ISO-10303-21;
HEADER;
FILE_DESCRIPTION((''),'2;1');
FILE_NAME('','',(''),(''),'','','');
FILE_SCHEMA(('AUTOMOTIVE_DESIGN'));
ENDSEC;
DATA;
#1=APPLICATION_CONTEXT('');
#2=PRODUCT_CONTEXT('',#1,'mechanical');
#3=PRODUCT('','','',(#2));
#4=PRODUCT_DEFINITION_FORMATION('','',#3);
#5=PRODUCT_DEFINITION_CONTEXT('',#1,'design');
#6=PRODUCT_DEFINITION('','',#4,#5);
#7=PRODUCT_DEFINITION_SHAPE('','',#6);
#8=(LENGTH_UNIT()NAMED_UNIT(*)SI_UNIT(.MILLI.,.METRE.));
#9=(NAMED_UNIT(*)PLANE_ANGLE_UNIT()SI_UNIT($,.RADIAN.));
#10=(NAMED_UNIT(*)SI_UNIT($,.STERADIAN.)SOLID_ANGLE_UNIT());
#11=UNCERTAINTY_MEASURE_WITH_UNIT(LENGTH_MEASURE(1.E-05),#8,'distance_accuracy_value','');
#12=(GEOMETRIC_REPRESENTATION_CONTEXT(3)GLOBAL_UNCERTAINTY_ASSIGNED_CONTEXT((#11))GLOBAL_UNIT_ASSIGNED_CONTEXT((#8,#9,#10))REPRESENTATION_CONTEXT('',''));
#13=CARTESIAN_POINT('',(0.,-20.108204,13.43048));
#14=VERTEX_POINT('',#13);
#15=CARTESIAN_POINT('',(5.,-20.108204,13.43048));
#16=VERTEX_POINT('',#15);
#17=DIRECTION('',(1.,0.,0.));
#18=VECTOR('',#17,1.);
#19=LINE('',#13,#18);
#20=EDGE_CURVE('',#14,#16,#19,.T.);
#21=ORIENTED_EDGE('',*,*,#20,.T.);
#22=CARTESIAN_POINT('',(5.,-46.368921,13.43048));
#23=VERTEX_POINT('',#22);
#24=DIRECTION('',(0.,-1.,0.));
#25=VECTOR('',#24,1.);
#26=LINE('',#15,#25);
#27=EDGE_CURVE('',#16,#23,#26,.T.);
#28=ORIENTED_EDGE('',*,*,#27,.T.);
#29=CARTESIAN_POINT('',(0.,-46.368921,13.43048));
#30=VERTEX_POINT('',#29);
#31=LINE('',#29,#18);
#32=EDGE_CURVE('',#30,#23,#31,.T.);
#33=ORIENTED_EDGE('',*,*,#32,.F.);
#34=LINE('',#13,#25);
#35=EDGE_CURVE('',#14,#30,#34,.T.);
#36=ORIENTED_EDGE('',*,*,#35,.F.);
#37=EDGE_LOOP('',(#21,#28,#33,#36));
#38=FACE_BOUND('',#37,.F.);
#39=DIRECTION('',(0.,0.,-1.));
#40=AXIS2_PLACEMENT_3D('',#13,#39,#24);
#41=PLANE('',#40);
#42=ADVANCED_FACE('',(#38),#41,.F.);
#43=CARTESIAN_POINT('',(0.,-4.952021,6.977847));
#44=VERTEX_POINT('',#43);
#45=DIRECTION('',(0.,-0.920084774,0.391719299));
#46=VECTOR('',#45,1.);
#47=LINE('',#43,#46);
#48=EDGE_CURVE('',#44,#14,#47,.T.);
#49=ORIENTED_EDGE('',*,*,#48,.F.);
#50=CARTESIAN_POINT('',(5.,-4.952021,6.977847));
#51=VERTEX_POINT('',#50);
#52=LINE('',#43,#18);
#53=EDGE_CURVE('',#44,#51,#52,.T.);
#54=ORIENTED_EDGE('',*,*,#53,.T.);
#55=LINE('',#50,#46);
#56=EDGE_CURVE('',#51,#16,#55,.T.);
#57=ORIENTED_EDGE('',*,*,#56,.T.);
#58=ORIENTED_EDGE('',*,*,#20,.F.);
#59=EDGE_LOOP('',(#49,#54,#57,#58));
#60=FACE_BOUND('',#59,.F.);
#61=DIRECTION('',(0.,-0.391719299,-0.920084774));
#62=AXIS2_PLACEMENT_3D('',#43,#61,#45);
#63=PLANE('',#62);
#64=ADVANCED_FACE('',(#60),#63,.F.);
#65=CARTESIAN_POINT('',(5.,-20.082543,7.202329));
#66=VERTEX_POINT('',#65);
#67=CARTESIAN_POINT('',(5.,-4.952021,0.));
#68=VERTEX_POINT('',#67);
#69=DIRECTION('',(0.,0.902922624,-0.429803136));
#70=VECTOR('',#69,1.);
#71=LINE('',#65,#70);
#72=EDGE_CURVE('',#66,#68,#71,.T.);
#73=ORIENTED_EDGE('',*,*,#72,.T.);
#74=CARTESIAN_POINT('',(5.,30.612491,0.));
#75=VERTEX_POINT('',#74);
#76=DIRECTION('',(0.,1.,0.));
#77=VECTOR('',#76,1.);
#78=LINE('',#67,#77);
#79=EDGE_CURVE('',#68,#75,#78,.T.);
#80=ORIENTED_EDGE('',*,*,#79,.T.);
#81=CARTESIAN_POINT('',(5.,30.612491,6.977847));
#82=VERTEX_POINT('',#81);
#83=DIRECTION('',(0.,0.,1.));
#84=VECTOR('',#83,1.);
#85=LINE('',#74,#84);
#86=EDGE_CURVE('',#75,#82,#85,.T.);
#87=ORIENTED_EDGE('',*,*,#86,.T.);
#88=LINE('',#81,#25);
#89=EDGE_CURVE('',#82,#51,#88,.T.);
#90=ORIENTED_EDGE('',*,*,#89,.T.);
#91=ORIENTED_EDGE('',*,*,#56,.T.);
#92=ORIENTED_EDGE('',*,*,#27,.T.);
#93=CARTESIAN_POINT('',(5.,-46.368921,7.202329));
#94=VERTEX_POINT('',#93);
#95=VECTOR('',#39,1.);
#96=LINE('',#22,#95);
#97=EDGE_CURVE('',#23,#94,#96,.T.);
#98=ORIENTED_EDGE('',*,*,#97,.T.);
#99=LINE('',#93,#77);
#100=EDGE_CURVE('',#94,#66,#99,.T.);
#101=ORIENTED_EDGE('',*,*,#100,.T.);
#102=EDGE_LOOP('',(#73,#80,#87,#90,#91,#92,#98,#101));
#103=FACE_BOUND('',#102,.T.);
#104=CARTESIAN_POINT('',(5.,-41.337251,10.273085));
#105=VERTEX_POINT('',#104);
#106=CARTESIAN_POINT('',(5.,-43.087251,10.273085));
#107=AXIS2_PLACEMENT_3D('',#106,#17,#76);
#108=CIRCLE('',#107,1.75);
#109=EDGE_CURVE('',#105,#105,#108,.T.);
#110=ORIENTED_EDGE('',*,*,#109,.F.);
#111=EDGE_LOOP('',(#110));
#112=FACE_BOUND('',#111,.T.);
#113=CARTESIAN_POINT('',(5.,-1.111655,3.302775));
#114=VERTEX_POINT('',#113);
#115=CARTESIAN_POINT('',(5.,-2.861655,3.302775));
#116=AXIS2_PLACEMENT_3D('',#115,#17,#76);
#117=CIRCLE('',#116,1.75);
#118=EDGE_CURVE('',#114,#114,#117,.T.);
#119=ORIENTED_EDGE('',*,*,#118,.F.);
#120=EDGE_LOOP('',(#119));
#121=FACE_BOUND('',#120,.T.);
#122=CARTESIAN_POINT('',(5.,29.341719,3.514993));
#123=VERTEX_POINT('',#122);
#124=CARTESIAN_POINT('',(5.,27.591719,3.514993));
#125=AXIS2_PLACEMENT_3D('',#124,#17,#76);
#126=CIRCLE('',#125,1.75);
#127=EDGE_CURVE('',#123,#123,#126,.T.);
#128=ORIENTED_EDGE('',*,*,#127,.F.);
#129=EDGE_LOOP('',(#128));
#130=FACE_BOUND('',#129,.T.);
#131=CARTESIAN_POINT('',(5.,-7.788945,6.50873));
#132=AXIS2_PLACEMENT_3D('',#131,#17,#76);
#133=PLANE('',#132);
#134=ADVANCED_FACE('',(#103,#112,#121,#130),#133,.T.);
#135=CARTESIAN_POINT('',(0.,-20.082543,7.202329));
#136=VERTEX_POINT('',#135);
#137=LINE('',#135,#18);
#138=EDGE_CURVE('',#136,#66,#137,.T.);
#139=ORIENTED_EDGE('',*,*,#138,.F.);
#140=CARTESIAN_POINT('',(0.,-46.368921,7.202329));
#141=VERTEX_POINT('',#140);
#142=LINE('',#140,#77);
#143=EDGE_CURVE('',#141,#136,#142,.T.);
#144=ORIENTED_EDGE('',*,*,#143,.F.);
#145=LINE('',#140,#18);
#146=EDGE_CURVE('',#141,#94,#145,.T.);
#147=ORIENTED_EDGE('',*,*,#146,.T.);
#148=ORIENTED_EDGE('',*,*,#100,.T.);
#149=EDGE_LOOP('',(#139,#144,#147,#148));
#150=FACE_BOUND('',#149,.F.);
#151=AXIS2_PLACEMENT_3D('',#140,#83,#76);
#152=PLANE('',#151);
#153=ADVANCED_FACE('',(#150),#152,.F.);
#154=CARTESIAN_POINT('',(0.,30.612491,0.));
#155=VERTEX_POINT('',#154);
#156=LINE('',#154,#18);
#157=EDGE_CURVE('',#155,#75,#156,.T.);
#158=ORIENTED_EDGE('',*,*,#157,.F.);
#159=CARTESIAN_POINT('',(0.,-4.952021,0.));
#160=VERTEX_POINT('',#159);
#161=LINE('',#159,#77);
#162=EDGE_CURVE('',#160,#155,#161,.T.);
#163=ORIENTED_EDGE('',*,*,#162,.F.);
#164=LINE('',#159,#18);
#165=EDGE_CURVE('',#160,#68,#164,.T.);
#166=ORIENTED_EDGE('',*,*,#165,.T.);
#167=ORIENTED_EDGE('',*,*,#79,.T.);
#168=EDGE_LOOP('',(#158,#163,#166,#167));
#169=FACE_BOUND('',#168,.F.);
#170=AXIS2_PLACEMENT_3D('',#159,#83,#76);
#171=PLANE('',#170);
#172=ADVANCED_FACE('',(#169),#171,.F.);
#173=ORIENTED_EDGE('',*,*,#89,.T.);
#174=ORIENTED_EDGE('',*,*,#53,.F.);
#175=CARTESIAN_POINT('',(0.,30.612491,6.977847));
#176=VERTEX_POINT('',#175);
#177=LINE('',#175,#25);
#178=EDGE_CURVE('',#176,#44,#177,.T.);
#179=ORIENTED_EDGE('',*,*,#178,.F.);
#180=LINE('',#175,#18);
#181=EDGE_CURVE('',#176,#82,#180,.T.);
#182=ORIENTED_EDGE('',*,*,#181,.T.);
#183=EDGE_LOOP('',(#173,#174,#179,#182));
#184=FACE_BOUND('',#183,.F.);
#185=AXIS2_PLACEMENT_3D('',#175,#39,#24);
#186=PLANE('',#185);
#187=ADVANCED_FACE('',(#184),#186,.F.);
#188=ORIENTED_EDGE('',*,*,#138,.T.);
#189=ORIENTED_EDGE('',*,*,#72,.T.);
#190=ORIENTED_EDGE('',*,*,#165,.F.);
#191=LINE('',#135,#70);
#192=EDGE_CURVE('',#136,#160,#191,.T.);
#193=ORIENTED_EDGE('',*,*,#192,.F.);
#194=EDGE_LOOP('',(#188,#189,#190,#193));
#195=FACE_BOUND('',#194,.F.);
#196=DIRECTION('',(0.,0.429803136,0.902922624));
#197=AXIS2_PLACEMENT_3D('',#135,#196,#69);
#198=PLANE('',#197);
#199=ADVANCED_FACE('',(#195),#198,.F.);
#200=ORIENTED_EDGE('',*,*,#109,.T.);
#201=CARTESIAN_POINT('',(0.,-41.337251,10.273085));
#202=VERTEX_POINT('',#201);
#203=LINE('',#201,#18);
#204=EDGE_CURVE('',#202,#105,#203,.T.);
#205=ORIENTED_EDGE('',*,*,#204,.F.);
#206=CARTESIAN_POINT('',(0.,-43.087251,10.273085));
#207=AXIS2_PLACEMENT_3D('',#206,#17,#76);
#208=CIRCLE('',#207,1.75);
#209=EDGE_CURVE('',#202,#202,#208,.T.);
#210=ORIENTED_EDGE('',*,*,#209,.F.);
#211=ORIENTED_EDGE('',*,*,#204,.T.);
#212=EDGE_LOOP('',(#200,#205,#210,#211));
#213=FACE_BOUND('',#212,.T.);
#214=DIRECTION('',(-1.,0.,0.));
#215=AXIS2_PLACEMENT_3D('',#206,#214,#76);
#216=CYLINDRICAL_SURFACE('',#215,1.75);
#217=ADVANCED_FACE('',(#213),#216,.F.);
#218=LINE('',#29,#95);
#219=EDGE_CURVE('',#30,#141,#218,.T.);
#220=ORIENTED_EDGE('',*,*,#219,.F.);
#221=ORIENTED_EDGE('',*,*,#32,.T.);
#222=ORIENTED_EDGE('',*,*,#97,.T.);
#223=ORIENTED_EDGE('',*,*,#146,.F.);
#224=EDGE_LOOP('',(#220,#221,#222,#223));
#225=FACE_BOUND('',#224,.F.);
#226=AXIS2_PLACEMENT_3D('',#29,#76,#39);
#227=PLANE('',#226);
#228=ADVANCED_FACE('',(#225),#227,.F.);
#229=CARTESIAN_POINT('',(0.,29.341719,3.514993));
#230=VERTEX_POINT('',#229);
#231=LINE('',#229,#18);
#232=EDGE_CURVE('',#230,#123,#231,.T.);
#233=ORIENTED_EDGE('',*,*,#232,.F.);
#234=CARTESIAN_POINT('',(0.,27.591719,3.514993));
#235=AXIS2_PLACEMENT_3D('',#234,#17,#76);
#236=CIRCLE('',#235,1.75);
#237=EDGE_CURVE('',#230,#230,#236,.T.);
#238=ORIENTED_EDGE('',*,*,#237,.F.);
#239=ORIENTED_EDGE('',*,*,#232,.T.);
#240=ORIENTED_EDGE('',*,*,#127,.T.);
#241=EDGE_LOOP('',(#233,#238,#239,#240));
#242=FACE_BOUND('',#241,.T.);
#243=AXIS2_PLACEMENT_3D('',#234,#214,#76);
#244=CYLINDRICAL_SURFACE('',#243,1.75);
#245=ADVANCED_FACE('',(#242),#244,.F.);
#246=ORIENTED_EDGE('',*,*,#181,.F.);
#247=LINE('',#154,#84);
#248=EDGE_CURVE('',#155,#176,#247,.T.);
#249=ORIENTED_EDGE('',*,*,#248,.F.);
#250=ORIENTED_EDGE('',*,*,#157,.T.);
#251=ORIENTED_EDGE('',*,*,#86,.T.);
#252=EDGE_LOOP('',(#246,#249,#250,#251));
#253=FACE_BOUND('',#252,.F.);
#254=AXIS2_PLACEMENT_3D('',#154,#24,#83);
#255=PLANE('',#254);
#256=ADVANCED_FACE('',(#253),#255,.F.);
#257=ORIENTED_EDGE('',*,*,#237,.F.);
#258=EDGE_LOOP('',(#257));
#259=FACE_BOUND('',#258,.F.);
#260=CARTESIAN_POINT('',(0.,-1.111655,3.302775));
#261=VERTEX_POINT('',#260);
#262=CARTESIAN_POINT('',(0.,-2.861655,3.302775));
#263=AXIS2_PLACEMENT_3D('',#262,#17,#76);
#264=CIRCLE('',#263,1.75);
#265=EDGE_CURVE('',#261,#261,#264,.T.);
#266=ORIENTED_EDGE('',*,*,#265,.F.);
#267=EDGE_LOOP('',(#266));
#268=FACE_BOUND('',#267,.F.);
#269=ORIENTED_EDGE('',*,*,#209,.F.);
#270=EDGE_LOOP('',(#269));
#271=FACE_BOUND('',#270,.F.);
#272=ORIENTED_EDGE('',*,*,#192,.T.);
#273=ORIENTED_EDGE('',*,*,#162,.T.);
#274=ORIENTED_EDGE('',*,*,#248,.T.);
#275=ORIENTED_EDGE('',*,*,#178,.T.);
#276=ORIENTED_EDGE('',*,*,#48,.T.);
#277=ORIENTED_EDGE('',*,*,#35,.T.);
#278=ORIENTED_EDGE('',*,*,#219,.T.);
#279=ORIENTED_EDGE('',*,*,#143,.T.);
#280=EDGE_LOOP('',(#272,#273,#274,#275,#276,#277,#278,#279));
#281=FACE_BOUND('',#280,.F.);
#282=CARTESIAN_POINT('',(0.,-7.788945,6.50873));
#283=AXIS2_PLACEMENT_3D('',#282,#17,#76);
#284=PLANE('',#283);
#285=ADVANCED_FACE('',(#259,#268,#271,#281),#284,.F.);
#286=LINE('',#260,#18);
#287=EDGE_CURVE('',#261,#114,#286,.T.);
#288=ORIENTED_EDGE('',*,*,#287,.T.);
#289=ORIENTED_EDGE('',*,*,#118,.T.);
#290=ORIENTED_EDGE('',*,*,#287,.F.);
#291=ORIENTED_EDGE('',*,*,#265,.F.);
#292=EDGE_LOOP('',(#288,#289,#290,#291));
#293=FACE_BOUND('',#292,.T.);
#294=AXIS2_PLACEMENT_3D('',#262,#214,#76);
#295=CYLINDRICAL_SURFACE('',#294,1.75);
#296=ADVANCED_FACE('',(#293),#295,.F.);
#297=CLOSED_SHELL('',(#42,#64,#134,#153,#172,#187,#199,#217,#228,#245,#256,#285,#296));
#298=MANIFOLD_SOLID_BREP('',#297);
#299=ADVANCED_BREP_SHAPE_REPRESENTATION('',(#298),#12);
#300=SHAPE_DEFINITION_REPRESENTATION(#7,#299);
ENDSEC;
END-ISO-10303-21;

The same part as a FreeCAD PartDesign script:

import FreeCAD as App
import Part
import Sketcher
from FreeCAD import Vector


def add_polygon(sketch, points):
    """Adds a closed chain of lines whose ends are joined by coincident constraints."""
    first, n = sketch.GeometryCount, len(points)
    for a, b in zip(points, points[1:] + points[:1]):
        sketch.addGeometry(Part.LineSegment(App.Vector(*a, 0), App.Vector(*b, 0)), False)
    for i in range(n):
        sketch.addConstraint(Sketcher.Constraint("Coincident", first + i, 2, first + (i + 1) % n, 1))

doc = App.newDocument("Part")
body = doc.addObject("PartDesign::Body", "Body")

# Sketch on YZ plane
sketch1 = body.newObject("Sketcher::SketchObject", "Sketch")
sketch1.AttachmentSupport = (doc.getObject("YZ_Plane"), [""])
sketch1.MapMode = "FlatFace"
add_polygon(sketch1, [(-5, 0), (30.6, 0), (30.6, 7), (-5, 7), (-20.1, 13.4), (-46.4, 13.4), (-46.4, 7.2), (-20.1, 7.2)])  # lines 0-7
sketch1.addGeometry(Part.Circle(Vector(-2.9, 3.3, 0), Vector(0, 0, 1), 1.8), False)  # 8
sketch1.addGeometry(Part.Circle(Vector(27.6, 3.5, 0), Vector(0, 0, 1), 1.8), False)  # 9
sketch1.addGeometry(Part.Circle(Vector(-43.1, 10.3, 0), Vector(0, 0, 1), 1.8), False)  # 10
sketch1.addConstraint([
    Sketcher.Constraint("Horizontal", 0),
    Sketcher.Constraint("Vertical", 1),
    Sketcher.Constraint("Horizontal", 2),
    Sketcher.Constraint("Horizontal", 4),
    Sketcher.Constraint("Vertical", 5),
    Sketcher.Constraint("Horizontal", 6),
    Sketcher.Constraint("Equal", 8, 9),
    Sketcher.Constraint("Equal", 9, 10),
    Sketcher.Constraint("PointOnObject", 0, 2, -1),
    Sketcher.Constraint("Vertical", 2, 2, 7, 2),
    Sketcher.Constraint("Diameter", 8, 3.5),
    Sketcher.Constraint("DistanceY", 5, 2, 5, 1, 6.228151),
    Sketcher.Constraint("DistanceX", 4, 2, 2, 2, 41.4169),
    Sketcher.Constraint("DistanceX", 0, 1, 0, 2, 35.564512),
    Sketcher.Constraint("DistanceX", 4, 2, 4, 1, 26.260717),
    Sketcher.Constraint("DistanceX", 6, 1, 6, 2, 26.286378),
    Sketcher.Constraint("DistanceY", 1, 1, 1, 2, 6.977847),
    Sketcher.Constraint("DistanceX", -1, 1, 9, 3, 27.591719),
    Sketcher.Constraint("DistanceX", 10, 3, -1, 1, 43.087251),
    Sketcher.Constraint("DistanceX", -1, 1, 0, 2, 30.612491),
    Sketcher.Constraint("DistanceY", -1, 1, 3, 2, 13.43048),
    Sketcher.Constraint("DistanceY", 8, 3, 9, 3, 0.212218),
    Sketcher.Constraint("DistanceY", 8, 3, 10, 3, 6.97031),
    Sketcher.Constraint("DistanceY", 8, 3, 1, 2, 3.675072),
    Sketcher.Constraint("DistanceX", 3, 2, 8, 3, 17.246549),
])
pad1 = body.newObject("PartDesign::Pad", "Pad")
pad1.Profile = sketch1
pad1.Length = 5

doc.recompute()
